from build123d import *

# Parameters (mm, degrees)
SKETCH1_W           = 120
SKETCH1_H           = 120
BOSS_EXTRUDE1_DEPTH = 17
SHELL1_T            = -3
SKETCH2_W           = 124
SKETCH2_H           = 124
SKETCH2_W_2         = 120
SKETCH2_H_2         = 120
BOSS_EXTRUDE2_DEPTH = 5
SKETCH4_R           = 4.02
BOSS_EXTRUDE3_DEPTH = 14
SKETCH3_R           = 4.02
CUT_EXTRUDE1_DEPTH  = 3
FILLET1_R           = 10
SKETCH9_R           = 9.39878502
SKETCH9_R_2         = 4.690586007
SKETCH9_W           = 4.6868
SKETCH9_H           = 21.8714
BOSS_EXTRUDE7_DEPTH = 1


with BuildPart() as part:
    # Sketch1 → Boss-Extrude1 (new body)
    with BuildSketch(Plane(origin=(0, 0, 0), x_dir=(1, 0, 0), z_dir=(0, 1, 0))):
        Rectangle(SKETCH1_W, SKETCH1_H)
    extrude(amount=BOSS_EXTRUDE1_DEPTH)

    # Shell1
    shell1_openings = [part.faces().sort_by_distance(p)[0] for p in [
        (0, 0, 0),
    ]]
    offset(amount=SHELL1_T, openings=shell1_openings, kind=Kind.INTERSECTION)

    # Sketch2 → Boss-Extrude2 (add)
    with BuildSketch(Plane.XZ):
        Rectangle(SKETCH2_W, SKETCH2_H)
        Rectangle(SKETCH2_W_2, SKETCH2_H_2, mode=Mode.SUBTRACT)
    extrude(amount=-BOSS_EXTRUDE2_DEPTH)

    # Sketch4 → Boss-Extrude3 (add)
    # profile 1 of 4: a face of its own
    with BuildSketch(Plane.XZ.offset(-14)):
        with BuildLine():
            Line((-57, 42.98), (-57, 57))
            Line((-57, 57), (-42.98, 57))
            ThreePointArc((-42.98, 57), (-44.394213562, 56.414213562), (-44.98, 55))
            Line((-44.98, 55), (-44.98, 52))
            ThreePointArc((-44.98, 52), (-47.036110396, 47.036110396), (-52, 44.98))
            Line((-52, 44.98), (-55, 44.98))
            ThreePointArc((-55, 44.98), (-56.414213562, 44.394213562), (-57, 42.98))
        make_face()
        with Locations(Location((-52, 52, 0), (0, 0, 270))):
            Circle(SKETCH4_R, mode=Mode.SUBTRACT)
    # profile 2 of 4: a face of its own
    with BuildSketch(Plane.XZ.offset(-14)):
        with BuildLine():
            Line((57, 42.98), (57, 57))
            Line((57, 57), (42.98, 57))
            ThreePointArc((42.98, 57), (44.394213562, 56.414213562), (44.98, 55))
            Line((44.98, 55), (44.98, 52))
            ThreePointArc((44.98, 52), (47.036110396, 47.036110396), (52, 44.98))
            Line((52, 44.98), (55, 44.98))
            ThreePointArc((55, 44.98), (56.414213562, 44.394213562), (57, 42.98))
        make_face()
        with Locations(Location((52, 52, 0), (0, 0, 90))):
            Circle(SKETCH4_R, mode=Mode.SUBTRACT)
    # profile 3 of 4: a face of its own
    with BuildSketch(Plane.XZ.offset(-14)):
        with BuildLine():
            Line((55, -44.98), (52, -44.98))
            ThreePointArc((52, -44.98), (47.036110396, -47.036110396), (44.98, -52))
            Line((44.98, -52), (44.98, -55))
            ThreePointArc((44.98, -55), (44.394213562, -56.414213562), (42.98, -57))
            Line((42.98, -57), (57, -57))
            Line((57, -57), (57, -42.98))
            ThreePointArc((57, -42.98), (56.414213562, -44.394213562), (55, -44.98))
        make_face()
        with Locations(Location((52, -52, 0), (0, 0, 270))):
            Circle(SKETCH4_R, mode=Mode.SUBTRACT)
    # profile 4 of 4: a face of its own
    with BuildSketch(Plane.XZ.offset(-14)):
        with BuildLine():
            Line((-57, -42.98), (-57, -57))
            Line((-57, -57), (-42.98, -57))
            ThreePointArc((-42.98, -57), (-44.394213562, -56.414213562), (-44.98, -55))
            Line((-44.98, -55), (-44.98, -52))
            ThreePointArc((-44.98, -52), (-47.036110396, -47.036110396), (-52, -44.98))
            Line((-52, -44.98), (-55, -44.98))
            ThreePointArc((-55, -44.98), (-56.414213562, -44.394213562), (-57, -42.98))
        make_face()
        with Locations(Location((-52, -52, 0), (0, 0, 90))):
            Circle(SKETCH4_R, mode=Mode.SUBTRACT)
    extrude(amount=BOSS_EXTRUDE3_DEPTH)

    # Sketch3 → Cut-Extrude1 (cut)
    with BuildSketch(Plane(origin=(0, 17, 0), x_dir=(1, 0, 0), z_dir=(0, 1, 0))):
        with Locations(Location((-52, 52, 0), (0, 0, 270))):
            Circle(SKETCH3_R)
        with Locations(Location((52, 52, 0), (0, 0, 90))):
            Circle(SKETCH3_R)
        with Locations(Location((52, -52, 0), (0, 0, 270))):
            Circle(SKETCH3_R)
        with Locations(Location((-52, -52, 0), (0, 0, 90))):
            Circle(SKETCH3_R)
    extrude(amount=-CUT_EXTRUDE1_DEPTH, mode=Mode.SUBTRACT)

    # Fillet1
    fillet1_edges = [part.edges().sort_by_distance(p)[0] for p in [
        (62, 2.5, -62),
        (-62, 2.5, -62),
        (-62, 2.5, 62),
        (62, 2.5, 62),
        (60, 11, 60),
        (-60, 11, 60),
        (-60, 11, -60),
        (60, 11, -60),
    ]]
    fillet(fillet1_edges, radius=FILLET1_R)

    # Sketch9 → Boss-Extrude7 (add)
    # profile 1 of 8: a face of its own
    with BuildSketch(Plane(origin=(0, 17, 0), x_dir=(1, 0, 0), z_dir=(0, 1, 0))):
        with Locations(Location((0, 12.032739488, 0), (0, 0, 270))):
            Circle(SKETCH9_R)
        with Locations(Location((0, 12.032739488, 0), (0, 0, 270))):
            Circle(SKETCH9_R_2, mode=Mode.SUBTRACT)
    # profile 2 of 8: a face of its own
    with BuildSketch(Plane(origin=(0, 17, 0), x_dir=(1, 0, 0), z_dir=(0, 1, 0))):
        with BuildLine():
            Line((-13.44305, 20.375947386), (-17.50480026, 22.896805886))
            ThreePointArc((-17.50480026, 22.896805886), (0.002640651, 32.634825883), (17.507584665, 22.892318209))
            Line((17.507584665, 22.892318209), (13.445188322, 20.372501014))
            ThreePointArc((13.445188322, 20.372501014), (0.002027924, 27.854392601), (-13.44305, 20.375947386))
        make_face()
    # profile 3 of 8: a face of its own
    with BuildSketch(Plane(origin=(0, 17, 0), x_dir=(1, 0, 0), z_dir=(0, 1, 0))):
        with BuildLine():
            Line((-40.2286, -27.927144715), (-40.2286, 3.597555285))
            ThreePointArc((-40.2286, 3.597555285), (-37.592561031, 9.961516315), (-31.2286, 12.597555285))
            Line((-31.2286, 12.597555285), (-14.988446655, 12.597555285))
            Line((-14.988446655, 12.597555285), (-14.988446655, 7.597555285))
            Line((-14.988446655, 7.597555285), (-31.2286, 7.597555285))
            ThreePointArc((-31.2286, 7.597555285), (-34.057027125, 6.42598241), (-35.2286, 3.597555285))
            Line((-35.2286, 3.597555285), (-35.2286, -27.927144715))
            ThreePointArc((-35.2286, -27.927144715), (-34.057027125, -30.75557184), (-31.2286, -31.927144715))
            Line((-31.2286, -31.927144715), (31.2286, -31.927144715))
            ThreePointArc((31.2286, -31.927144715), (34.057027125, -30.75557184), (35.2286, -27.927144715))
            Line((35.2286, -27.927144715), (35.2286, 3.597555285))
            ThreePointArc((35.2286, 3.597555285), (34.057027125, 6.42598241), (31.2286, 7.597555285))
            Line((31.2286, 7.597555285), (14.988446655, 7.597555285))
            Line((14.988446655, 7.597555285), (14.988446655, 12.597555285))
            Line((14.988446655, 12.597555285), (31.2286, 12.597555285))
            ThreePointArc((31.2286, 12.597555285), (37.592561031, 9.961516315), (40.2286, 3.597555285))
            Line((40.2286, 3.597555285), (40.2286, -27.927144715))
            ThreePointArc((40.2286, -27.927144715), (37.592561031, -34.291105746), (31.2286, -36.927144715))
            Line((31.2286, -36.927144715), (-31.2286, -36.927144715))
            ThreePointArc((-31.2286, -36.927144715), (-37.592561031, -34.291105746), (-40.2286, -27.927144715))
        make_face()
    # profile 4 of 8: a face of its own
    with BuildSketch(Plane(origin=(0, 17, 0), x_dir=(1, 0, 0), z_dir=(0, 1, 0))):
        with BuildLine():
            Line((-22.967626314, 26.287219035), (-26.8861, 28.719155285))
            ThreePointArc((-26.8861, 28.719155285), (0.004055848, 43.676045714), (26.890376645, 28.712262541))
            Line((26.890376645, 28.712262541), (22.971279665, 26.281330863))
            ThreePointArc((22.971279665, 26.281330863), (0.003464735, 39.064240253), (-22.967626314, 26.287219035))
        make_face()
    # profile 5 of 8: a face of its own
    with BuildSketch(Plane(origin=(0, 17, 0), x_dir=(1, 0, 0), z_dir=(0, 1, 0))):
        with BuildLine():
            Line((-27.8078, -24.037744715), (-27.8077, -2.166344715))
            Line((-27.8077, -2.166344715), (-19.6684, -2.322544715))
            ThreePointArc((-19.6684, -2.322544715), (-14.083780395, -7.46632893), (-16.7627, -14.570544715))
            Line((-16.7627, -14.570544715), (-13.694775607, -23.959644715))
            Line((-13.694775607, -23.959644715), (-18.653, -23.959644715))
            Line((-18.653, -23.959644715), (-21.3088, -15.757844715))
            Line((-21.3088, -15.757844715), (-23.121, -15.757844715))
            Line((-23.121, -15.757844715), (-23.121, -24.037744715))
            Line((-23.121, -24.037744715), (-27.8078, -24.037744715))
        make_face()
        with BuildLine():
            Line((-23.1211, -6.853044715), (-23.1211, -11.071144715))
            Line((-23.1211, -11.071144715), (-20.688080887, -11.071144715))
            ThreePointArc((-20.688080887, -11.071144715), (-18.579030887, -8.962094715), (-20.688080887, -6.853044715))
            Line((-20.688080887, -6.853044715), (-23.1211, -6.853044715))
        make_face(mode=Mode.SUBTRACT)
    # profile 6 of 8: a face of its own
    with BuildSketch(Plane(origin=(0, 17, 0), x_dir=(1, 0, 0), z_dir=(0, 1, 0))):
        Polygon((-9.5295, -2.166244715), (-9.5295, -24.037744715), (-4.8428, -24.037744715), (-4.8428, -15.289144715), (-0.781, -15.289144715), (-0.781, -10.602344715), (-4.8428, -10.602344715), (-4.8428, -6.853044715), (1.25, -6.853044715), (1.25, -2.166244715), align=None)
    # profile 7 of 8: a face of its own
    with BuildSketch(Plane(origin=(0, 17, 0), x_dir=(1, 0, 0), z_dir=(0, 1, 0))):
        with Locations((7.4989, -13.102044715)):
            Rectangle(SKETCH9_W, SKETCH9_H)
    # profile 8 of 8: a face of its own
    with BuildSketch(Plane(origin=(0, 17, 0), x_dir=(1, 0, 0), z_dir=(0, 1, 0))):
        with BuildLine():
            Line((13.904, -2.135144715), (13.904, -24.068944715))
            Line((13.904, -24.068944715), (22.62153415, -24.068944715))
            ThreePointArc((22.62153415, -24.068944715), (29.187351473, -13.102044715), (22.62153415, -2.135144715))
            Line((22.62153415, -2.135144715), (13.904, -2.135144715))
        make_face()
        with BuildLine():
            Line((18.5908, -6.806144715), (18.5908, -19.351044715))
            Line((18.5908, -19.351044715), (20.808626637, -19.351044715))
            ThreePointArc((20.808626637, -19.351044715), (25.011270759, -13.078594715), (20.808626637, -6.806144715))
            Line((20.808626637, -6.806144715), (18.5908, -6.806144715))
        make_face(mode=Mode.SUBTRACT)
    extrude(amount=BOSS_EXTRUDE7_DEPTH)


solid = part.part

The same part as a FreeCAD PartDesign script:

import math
import FreeCAD as App
import Part
import Sketcher
from FreeCAD import Vector
Q = App.Units.Quantity


def edges_at(feature, points):
    """Names of the edges that pass closest to the given points."""
    edges = feature.Shape.Edges
    near = lambda p: min(range(len(edges)), key=lambda i: edges[i].distToShape(Part.Vertex(*p))[0])
    return sorted({f"Edge{near(p) + 1}" for p in points})


def faces_at(feature, points):
    """Names of the faces that lie closest to the given points."""
    faces = feature.Shape.Faces
    near = lambda p: min(range(len(faces)), key=lambda i: faces[i].distToShape(Part.Vertex(*p))[0])
    return sorted({f"Face{near(p) + 1}" for p in points})


def add_polygon(sketch, points):
    """Adds a closed chain of lines whose ends are joined by coincident constraints."""
    first, n = sketch.GeometryCount, len(points)
    for a, b in zip(points, points[1:] + points[:1]):
        sketch.addGeometry(Part.LineSegment(App.Vector(*a, 0), App.Vector(*b, 0)), False)
    for i in range(n):
        sketch.addConstraint(Sketcher.Constraint("Coincident", first + i, 2, first + (i + 1) % n, 1))

doc = App.newDocument("Part")
body = doc.addObject("PartDesign::Body", "Body")

sketch1 = body.newObject("Sketcher::SketchObject", "Sketch")
sketch1.AttachmentSupport = (doc.getObject("XZ_Plane"), [""])
sketch1.MapMode = "FlatFace"
add_polygon(sketch1, [(-60, -60), (-60, 60), (60, 60), (60, -60)])
sketch1.addConstraint(Sketcher.Constraint("Vertical", 0))
sketch1.addConstraint(Sketcher.Constraint("Horizontal", 1))
sketch1.addConstraint(Sketcher.Constraint("Vertical", 2))
sketch1.addConstraint(Sketcher.Constraint("Horizontal", 3))
sketch1.addConstraint(Sketcher.Constraint("Symmetric", 0, 2, 2, 2, -1, 1))
sketch1.addConstraint(Sketcher.Constraint("Equal", 3, 0))
sketch1.addConstraint(Sketcher.Constraint("DistanceX", 1, 1, 1, 2, Q("120 mm")))
pad1 = body.newObject("PartDesign::Pad", "Pad")
pad1.Profile = sketch1
pad1.Length = 17
pad1.Reversed = True
doc.recompute()

thickness = body.newObject("PartDesign::Thickness", "Thickness")
thickness.Base = (pad1, faces_at(pad1, [(0, 0, 0)]))
thickness.Value = 3
thickness.Reversed = True
thickness.Join = "Intersection"

sketch2 = body.newObject("Sketcher::SketchObject", "Sketch001")
sketch2.AttachmentSupport = (doc.getObject("XZ_Plane"), [""])
sketch2.MapMode = "FlatFace"
add_polygon(sketch2, [(-62, 62), (-62, -62), (62, -62), (62, 62)])
add_polygon(sketch2, [(60, -60), (-60, -60), (-60, 60), (60, 60)])
sketch2.addConstraint(Sketcher.Constraint("Vertical", 0))
sketch2.addConstraint(Sketcher.Constraint("Horizontal", 1))
sketch2.addConstraint(Sketcher.Constraint("Vertical", 2))
sketch2.addConstraint(Sketcher.Constraint("Horizontal", 3))
sketch2.addConstraint(Sketcher.Constraint("Horizontal", 4))
sketch2.addConstraint(Sketcher.Constraint("Vertical", 5))
sketch2.addConstraint(Sketcher.Constraint("Horizontal", 6))
sketch2.addConstraint(Sketcher.Constraint("Vertical", 7))
sketch2.addConstraint(Sketcher.Constraint("Symmetric", 0, 2, 2, 2, -1, 1))
sketch2.addConstraint(Sketcher.Constraint("Symmetric", 4, 2, 6, 2, -1, 1))
sketch2.addConstraint(Sketcher.Constraint("Equal", 3, 0))
sketch2.addConstraint(Sketcher.Constraint("Equal", 6, 5))
sketch2.addConstraint(Sketcher.Constraint("DistanceX", 1, 1, 1, 2, Q("124 mm")))
sketch2.addConstraint(Sketcher.Constraint("DistanceX", 4, 2, 4, 1, Q("120 mm")))
pad2 = body.newObject("PartDesign::Pad", "Pad001")
pad2.Profile = sketch2
pad2.Length = 5
pad2.Reversed = True

sketch3 = body.newObject("Sketcher::SketchObject", "Sketch002")
sketch3.AttachmentSupport = (doc.getObject("XZ_Plane"), [""])
sketch3.MapMode = "FlatFace"
sketch3.AttachmentOffset = App.Placement(Vector(0, 0, -14), App.Rotation())
sketch3.addGeometry(Part.LineSegment(Vector(-57, 57, 0), Vector(-57, 43, 0)), False)
sketch3.addGeometry(Part.ArcOfCircle(Part.Circle(Vector(-55, 43, 0), Vector(0, 0, 1), 2), math.radians(90), math.radians(180)), False)
sketch3.addGeometry(Part.LineSegment(Vector(-55, 45, 0), Vector(-52, 45, 0)), False)
sketch3.addGeometry(Part.ArcOfCircle(Part.Circle(Vector(-52, 52, 0), Vector(0, 0, 1), 7), math.radians(-90), math.radians(0)), False)
sketch3.addGeometry(Part.LineSegment(Vector(-45, 52, 0), Vector(-45, 55, 0)), False)
sketch3.addGeometry(Part.ArcOfCircle(Part.Circle(Vector(-43, 55, 0), Vector(0, 0, 1), 2), math.radians(90), math.radians(180)), False)
sketch3.addGeometry(Part.LineSegment(Vector(-43, 57, 0), Vector(-57, 57, 0)), False)
sketch3.addGeometry(Part.Circle(Vector(-52, 52, 0), Vector(0, 0, 1), 4), False)
sketch3.addGeometry(Part.LineSegment(Vector(57, 43, 0), Vector(57, 57, 0)), False)
sketch3.addGeometry(Part.LineSegment(Vector(57, 57, 0), Vector(43, 57, 0)), False)
sketch3.addGeometry(Part.ArcOfCircle(Part.Circle(Vector(43, 55, 0), Vector(0, 0, 1), 2), math.radians(0), math.radians(90)), False)
sketch3.addGeometry(Part.LineSegment(Vector(45, 55, 0), Vector(45, 52, 0)), False)
sketch3.addGeometry(Part.ArcOfCircle(Part.Circle(Vector(52, 52, 0), Vector(0, 0, 1), 7), math.radians(180), math.radians(270)), False)
sketch3.addGeometry(Part.LineSegment(Vector(52, 45, 0), Vector(55, 45, 0)), False)
sketch3.addGeometry(Part.ArcOfCircle(Part.Circle(Vector(55, 43, 0), Vector(0, 0, 1), 2), math.radians(0), math.radians(90)), False)
sketch3.addGeometry(Part.Circle(Vector(52, 52, 0), Vector(0, 0, 1), 4), False)
sketch3.addGeometry(Part.LineSegment(Vector(55, -45, 0), Vector(52, -45, 0)), False)
sketch3.addGeometry(Part.ArcOfCircle(Part.Circle(Vector(52, -52, 0), Vector(0, 0, 1), 7), math.radians(90), math.radians(180)), False)
sketch3.addGeometry(Part.LineSegment(Vector(45, -52, 0), Vector(45, -55, 0)), False)
sketch3.addGeometry(Part.ArcOfCircle(Part.Circle(Vector(43, -55, 0), Vector(0, 0, 1), 2), math.radians(-90), math.radians(0)), False)
sketch3.addGeometry(Part.LineSegment(Vector(43, -57, 0), Vector(57, -57, 0)), False)
sketch3.addGeometry(Part.LineSegment(Vector(57, -57, 0), Vector(57, -43, 0)), False)
sketch3.addGeometry(Part.ArcOfCircle(Part.Circle(Vector(55, -43, 0), Vector(0, 0, 1), 2), math.radians(-90), math.radians(0)), False)
sketch3.addGeometry(Part.Circle(Vector(52, -52, 0), Vector(0, 0, 1), 4), False)
sketch3.addGeometry(Part.LineSegment(Vector(-57, -43, 0), Vector(-57, -57, 0)), False)
sketch3.addGeometry(Part.LineSegment(Vector(-57, -57, 0), Vector(-43, -57, 0)), False)
sketch3.addGeometry(Part.ArcOfCircle(Part.Circle(Vector(-43, -55, 0), Vector(0, 0, 1), 2), math.radians(-180), math.radians(-90)), False)
sketch3.addGeometry(Part.LineSegment(Vector(-45, -55, 0), Vector(-45, -52, 0)), False)
sketch3.addGeometry(Part.ArcOfCircle(Part.Circle(Vector(-52, -52, 0), Vector(0, 0, 1), 7), math.radians(0), math.radians(90)), False)
sketch3.addGeometry(Part.LineSegment(Vector(-52, -45, 0), Vector(-55, -45, 0)), False)
sketch3.addGeometry(Part.ArcOfCircle(Part.Circle(Vector(-55, -43, 0), Vector(0, 0, 1), 2), math.radians(-180), math.radians(-90)), False)
sketch3.addGeometry(Part.Circle(Vector(-52, -52, 0), Vector(0, 0, 1), 4), False)
sketch3.addConstraint(Sketcher.Constraint("Tangent", 0, 2, 1, 2))
sketch3.addConstraint(Sketcher.Constraint("Tangent", 1, 1, 2, 1))
sketch3.addConstraint(Sketcher.Constraint("Tangent", 2, 2, 3, 1))
sketch3.addConstraint(Sketcher.Constraint("Tangent", 3, 2, 4, 1))
sketch3.addConstraint(Sketcher.Constraint("Tangent", 4, 2, 5, 2))
sketch3.addConstraint(Sketcher.Constraint("Tangent", 5, 1, 6, 1))
sketch3.addConstraint(Sketcher.Constraint("Coincident", 6, 2, 0, 1))
sketch3.addConstraint(Sketcher.Constraint("Coincident", 8, 2, 9, 1))
sketch3.addConstraint(Sketcher.Constraint("Tangent", 9, 2, 10, 2))
sketch3.addConstraint(Sketcher.Constraint("Tangent", 10, 1, 11, 1))
sketch3.addConstraint(Sketcher.Constraint("Tangent", 11, 2, 12, 1))
sketch3.addConstraint(Sketcher.Constraint("Tangent", 12, 2, 13, 1))
sketch3.addConstraint(Sketcher.Constraint("Tangent", 13, 2, 14, 2))
sketch3.addConstraint(Sketcher.Constraint("Tangent", 14, 1, 8, 1))
sketch3.addConstraint(Sketcher.Constraint("Tangent", 16, 2, 17, 1))
sketch3.addConstraint(Sketcher.Constraint("Tangent", 17, 2, 18, 1))
sketch3.addConstraint(Sketcher.Constraint("Tangent", 18, 2, 19, 2))
sketch3.addConstraint(Sketcher.Constraint("Tangent", 19, 1, 20, 1))
sketch3.addConstraint(Sketcher.Constraint("Coincident", 20, 2, 21, 1))
sketch3.addConstraint(Sketcher.Constraint("Tangent", 21, 2, 22, 2))
sketch3.addConstraint(Sketcher.Constraint("Tangent", 22, 1, 16, 1))
sketch3.addConstraint(Sketcher.Constraint("Coincident", 24, 2, 25, 1))
sketch3.addConstraint(Sketcher.Constraint("Tangent", 25, 2, 26, 2))
sketch3.addConstraint(Sketcher.Constraint("Tangent", 26, 1, 27, 1))
sketch3.addConstraint(Sketcher.Constraint("Tangent", 27, 2, 28, 1))
sketch3.addConstraint(Sketcher.Constraint("Tangent", 28, 2, 29, 1))
sketch3.addConstraint(Sketcher.Constraint("Tangent", 29, 2, 30, 2))
sketch3.addConstraint(Sketcher.Constraint("Tangent", 30, 1, 24, 1))
sketch3.addConstraint(Sketcher.Constraint("Vertical", 0))
sketch3.addConstraint(Sketcher.Constraint("Horizontal", 2))
sketch3.addConstraint(Sketcher.Constraint("Vertical", 4))
sketch3.addConstraint(Sketcher.Constraint("Horizontal", 6))
sketch3.addConstraint(Sketcher.Constraint("Vertical", 8))
sketch3.addConstraint(Sketcher.Constraint("Horizontal", 9))
sketch3.addConstraint(Sketcher.Constraint("Vertical", 11))
sketch3.addConstraint(Sketcher.Constraint("Horizontal", 13))
sketch3.addConstraint(Sketcher.Constraint("Horizontal", 16))
sketch3.addConstraint(Sketcher.Constraint("Vertical", 18))
sketch3.addConstraint(Sketcher.Constraint("Horizontal", 20))
sketch3.addConstraint(Sketcher.Constraint("Vertical", 21))
sketch3.addConstraint(Sketcher.Constraint("Vertical", 24))
sketch3.addConstraint(Sketcher.Constraint("Horizontal", 25))
sketch3.addConstraint(Sketcher.Constraint("Vertical", 27))
sketch3.addConstraint(Sketcher.Constraint("Horizontal", 29))
sketch3.addConstraint(Sketcher.Constraint("Coincident", 7, 3, 3, 3))
sketch3.addConstraint(Sketcher.Constraint("Coincident", 15, 3, 12, 3))
sketch3.addConstraint(Sketcher.Constraint("Coincident", 23, 3, 17, 3))
sketch3.addConstraint(Sketcher.Constraint("Coincident", 31, 3, 28, 3))
sketch3.addConstraint(Sketcher.Constraint("Equal", 1, 5))
sketch3.addConstraint(Sketcher.Constraint("Equal", 5, 10))
sketch3.addConstraint(Sketcher.Constraint("Equal", 3, 12))
sketch3.addConstraint(Sketcher.Constraint("Equal", 10, 14))
sketch3.addConstraint(Sketcher.Constraint("Equal", 7, 15))
sketch3.addConstraint(Sketcher.Constraint("Equal", 12, 17))
sketch3.addConstraint(Sketcher.Constraint("Equal", 14, 19))
sketch3.addConstraint(Sketcher.Constraint("Equal", 19, 22))
sketch3.addConstraint(Sketcher.Constraint("Equal", 15, 23))
sketch3.addConstraint(Sketcher.Constraint("Equal", 22, 26))
sketch3.addConstraint(Sketcher.Constraint("Equal", 17, 28))
sketch3.addConstraint(Sketcher.Constraint("Equal", 26, 30))
sketch3.addConstraint(Sketcher.Constraint("Equal", 23, 31))
sketch3.addConstraint(Sketcher.Constraint("Symmetric", 3, 3, 17, 3, -1, 1))
sketch3.addConstraint(Sketcher.Constraint("Symmetric", 10, 3, 26, 3, -1, 1))
sketch3.addConstraint(Sketcher.Constraint("Symmetric", 14, 3, 30, 3, -1, 1))
sketch3.addConstraint(Sketcher.Constraint("Symmetric", 6, 2, 20, 2, -1, 1))
sketch3.addConstraint(Sketcher.Constraint("Symmetric", 5, 3, 10, 3, -2))
sketch3.addConstraint(Sketcher.Constraint("Symmetric", 1, 3, 14, 3, -2))
sketch3.addConstraint(Sketcher.Constraint("Equal", 25, 0))
sketch3.addConstraint(Sketcher.Constraint("Radius", 1, Q("2 mm")))
sketch3.addConstraint(Sketcher.Constraint("Diameter", 7, Q("8.04 mm")))
sketch3.addConstraint(Sketcher.Constraint("DistanceX", 2, 1, 2, 2, Q("3 mm")))
sketch3.addConstraint(Sketcher.Constraint("Radius", 3, Q("7.02 mm")))
sketch3.addConstraint(Sketcher.Constraint("DistanceX", 1, 3, -1, 1, Q("55 mm")))
sketch3.addConstraint(Sketcher.Constraint("DistanceY", -1, 1, 3, 3, Q("52 mm")))
pad3 = body.newObject("PartDesign::Pad", "Pad002")
pad3.Profile = sketch3
pad3.Length = 14

sketch4 = body.newObject("Sketcher::SketchObject", "Sketch003")
sketch4.AttachmentSupport = (doc.getObject("XZ_Plane"), [""])
sketch4.MapMode = "FlatFace"
sketch4.AttachmentOffset = App.Placement(Vector(0, 0, -17), App.Rotation())
sketch4.addGeometry(Part.Circle(Vector(-52, -52, 0), Vector(0, 0, 1), 4), False)
sketch4.addGeometry(Part.Circle(Vector(52, -52, 0), Vector(0, 0, 1), 4), False)
sketch4.addGeometry(Part.Circle(Vector(52, 52, 0), Vector(0, 0, 1), 4), False)
sketch4.addGeometry(Part.Circle(Vector(-52, 52, 0), Vector(0, 0, 1), 4), False)
sketch4.addConstraint(Sketcher.Constraint("Equal", 0, 1))
sketch4.addConstraint(Sketcher.Constraint("Equal", 1, 2))
sketch4.addConstraint(Sketcher.Constraint("Equal", 2, 3))
sketch4.addConstraint(Sketcher.Constraint("Symmetric", 0, 3, 2, 3, -1, 1))
sketch4.addConstraint(Sketcher.Constraint("Symmetric", 1, 3, 3, 3, -1, 1))
sketch4.addConstraint(Sketcher.Constraint("Symmetric", 0, 3, 1, 3, -2))
sketch4.addConstraint(Sketcher.Constraint("Diameter", 0, Q("8.04 mm")))
sketch4.addConstraint(Sketcher.Constraint("DistanceX", 0, 3, -1, 1, Q("52 mm")))
sketch4.addConstraint(Sketcher.Constraint("DistanceY", 0, 3, -1, 1, Q("52 mm")))
pocket1 = body.newObject("PartDesign::Pocket", "Pocket")
pocket1.Profile = sketch4
pocket1.Length = 3
pocket1.Reversed = True
doc.recompute()

fillet = body.newObject("PartDesign::Fillet", "Fillet")
fillet.Base = (pocket1, edges_at(pocket1, [
    (62, 2.5, -62),
    (-62, 2.5, -62),
    (-62, 2.5, 62),
    (62, 2.5, 62),
    (60, 11, 60),
    (-60, 11, 60),
    (-60, 11, -60),
    (60, 11, -60),
]))
fillet.Radius = 10

sketch5 = body.newObject("Sketcher::SketchObject", "Sketch004")
sketch5.AttachmentSupport = (doc.getObject("XZ_Plane"), [""])
sketch5.MapMode = "FlatFace"
sketch5.AttachmentOffset = App.Placement(Vector(0, 0, -17), App.Rotation())
sketch5.addGeometry(Part.Circle(Vector(0, -12, 0), Vector(0, 0, 1), 9.4), False)
sketch5.addGeometry(Part.Circle(Vector(0, -12, 0), Vector(0, 0, 1), 4.7), False)
sketch5.addGeometry(Part.LineSegment(Vector(-17.5, -22.9, 0), Vector(-13.4, -20.4, 0)), False)
sketch5.addGeometry(Part.ArcOfCircle(Part.Circle(Vector(0, -12, 0), Vector(0, 0, 1), 15.8), math.radians(-148), math.radians(-32)), False)
sketch5.addGeometry(Part.LineSegment(Vector(13.4, -20.4, 0), Vector(17.5, -22.9, 0)), False)
sketch5.addGeometry(Part.ArcOfCircle(Part.Circle(Vector(0, -12, 0), Vector(0, 0, 1), 20.6), math.radians(-148), math.radians(-32)), False)
sketch5.addGeometry(Part.LineSegment(Vector(-40.2, -3.6, 0), Vector(-40.2, 27.9, 0)), False)
sketch5.addGeometry(Part.ArcOfCircle(Part.Circle(Vector(-31.2, 27.9, 0), Vector(0, 0, 1), 9), math.radians(90), math.radians(180)), False)
sketch5.addGeometry(Part.LineSegment(Vector(-31.2, 36.9, 0), Vector(31.2, 36.9, 0)), False)
sketch5.addGeometry(Part.ArcOfCircle(Part.Circle(Vector(31.2, 27.9, 0), Vector(0, 0, 1), 9), math.radians(0), math.radians(90)), False)
sketch5.addGeometry(Part.LineSegment(Vector(40.2, 27.9, 0), Vector(40.2, -3.6, 0)), False)
sketch5.addGeometry(Part.ArcOfCircle(Part.Circle(Vector(31.2, -3.6, 0), Vector(0, 0, 1), 9), math.radians(-90), math.radians(0)), False)
sketch5.addGeometry(Part.LineSegment(Vector(31.2, -12.6, 0), Vector(15, -12.6, 0)), False)
sketch5.addGeometry(Part.LineSegment(Vector(15, -12.6, 0), Vector(15, -7.6, 0)), False)
sketch5.addGeometry(Part.LineSegment(Vector(15, -7.6, 0), Vector(31.2, -7.6, 0)), False)
sketch5.addGeometry(Part.ArcOfCircle(Part.Circle(Vector(31.2, -3.6, 0), Vector(0, 0, 1), 4), math.radians(-90), math.radians(0)), False)
sketch5.addGeometry(Part.LineSegment(Vector(35.2, -3.6, 0), Vector(35.2, 27.9, 0)), False)
sketch5.addGeometry(Part.ArcOfCircle(Part.Circle(Vector(31.2, 27.9, 0), Vector(0, 0, 1), 4), math.radians(0), math.radians(90)), False)
sketch5.addGeometry(Part.LineSegment(Vector(31.2, 31.9, 0), Vector(-31.2, 31.9, 0)), False)
sketch5.addGeometry(Part.ArcOfCircle(Part.Circle(Vector(-31.2, 27.9, 0), Vector(0, 0, 1), 4), math.radians(90), math.radians(180)), False)
sketch5.addGeometry(Part.LineSegment(Vector(-35.2, 27.9, 0), Vector(-35.2, -3.6, 0)), False)
sketch5.addGeometry(Part.ArcOfCircle(Part.Circle(Vector(-31.2, -3.6, 0), Vector(0, 0, 1), 4), math.radians(180), math.radians(270)), False)
sketch5.addGeometry(Part.LineSegment(Vector(-31.2, -7.6, 0), Vector(-15, -7.6, 0)), False)
sketch5.addGeometry(Part.LineSegment(Vector(-15, -7.6, 0), Vector(-15, -12.6, 0)), False)
sketch5.addGeometry(Part.LineSegment(Vector(-15, -12.6, 0), Vector(-31.2, -12.6, 0)), False)
sketch5.addGeometry(Part.ArcOfCircle(Part.Circle(Vector(-31.2, -3.6, 0), Vector(0, 0, 1), 9), math.radians(-180), math.radians(-90)), False)
sketch5.addGeometry(Part.LineSegment(Vector(-26.9, -28.7, 0), Vector(-23, -26.3, 0)), False)
sketch5.addGeometry(Part.ArcOfCircle(Part.Circle(Vector(0, -12, 0), Vector(0, 0, 1), 27), math.radians(-148), math.radians(-32)), False)
sketch5.addGeometry(Part.LineSegment(Vector(23, -26.3, 0), Vector(26.9, -28.7, 0)), False)
sketch5.addGeometry(Part.ArcOfCircle(Part.Circle(Vector(0, -12, 0), Vector(0, 0, 1), 31.6), math.radians(-148), math.radians(-32)), False)
sketch5.addGeometry(Part.LineSegment(Vector(-27.8, 2.2, 0), Vector(-27.8, 24, 0)), False)
sketch5.addGeometry(Part.LineSegment(Vector(-27.8, 24, 0), Vector(-23.1, 24, 0)), False)
sketch5.addGeometry(Part.LineSegment(Vector(-23.1, 24, 0), Vector(-23.1, 15.8, 0)), False)
sketch5.addGeometry(Part.LineSegment(Vector(-23.1, 15.8, 0), Vector(-21.3, 15.8, 0)), False)
sketch5.addGeometry(Part.LineSegment(Vector(-21.3, 15.8, 0), Vector(-18.7, 24, 0)), False)
sketch5.addGeometry(Part.LineSegment(Vector(-18.7, 24, 0), Vector(-13.7, 24, 0)), False)
sketch5.addGeometry(Part.LineSegment(Vector(-13.7, 24, 0), Vector(-16.8, 14.6, 0)), False)
sketch5.addGeometry(Part.ArcOfCircle(Part.Circle(Vector(-20.7, 9, 0), Vector(0, 0, 1), 6.8), math.radians(-81), math.radians(55)), False)
sketch5.addGeometry(Part.LineSegment(Vector(-19.7, 2.3, 0), Vector(-27.8, 2.2, 0)), False)
sketch5.addGeometry(Part.LineSegment(Vector(-23.1, 6.9, 0), Vector(-20.7, 6.9, 0)), False)
sketch5.addGeometry(Part.ArcOfCircle(Part.Circle(Vector(-20.7, 9, 0), Vector(0, 0, 1), 2.1), math.radians(-90), math.radians(90)), False)
sketch5.addGeometry(Part.LineSegment(Vector(-20.7, 11.1, 0), Vector(-23.1, 11.1, 0)), False)
sketch5.addGeometry(Part.LineSegment(Vector(-23.1, 11.1, 0), Vector(-23.1, 6.9, 0)), False)
add_polygon(sketch5, [(-9.5, 2.2), (-9.5, 24), (-4.8, 24), (-4.8, 15.3), (-0.8, 15.3), (-0.8, 10.6), (-4.8, 10.6), (-4.8, 6.9), (1.2, 6.9), (1.2, 2.2)])
add_polygon(sketch5, [(5.2, 2.2), (5.2, 24), (9.8, 24), (9.8, 2.2)])
sketch5.addGeometry(Part.LineSegment(Vector(13.9, 2.1, 0), Vector(13.9, 24.1, 0)), False)
sketch5.addGeometry(Part.LineSegment(Vector(13.9, 24.1, 0), Vector(22.6, 24.1, 0)), False)
sketch5.addGeometry(Part.ArcOfCircle(Part.Circle(Vector(16.7, 13.1, 0), Vector(0, 0, 1), 12.4), math.radians(-62), math.radians(62)), False)
sketch5.addGeometry(Part.LineSegment(Vector(22.6, 2.1, 0), Vector(13.9, 2.1, 0)), False)
sketch5.addGeometry(Part.LineSegment(Vector(18.6, 19.4, 0), Vector(18.6, 6.8, 0)), False)
sketch5.addGeometry(Part.LineSegment(Vector(18.6, 6.8, 0), Vector(20.8, 6.8, 0)), False)
sketch5.addGeometry(Part.ArcOfCircle(Part.Circle(Vector(18.2, 13.1, 0), Vector(0, 0, 1), 6.8), math.radians(-68), math.radians(68)), False)
sketch5.addGeometry(Part.LineSegment(Vector(20.8, 19.4, 0), Vector(18.6, 19.4, 0)), False)
sketch5.addConstraint(Sketcher.Constraint("Coincident", 2, 2, 3, 1))
sketch5.addConstraint(Sketcher.Constraint("Coincident", 3, 2, 4, 1))
sketch5.addConstraint(Sketcher.Constraint("Coincident", 4, 2, 5, 2))
sketch5.addConstraint(Sketcher.Constraint("Coincident", 5, 1, 2, 1))
sketch5.addConstraint(Sketcher.Constraint("Tangent", 6, 2, 7, 2))
sketch5.addConstraint(Sketcher.Constraint("Tangent", 7, 1, 8, 1))
sketch5.addConstraint(Sketcher.Constraint("Tangent", 8, 2, 9, 2))
sketch5.addConstraint(Sketcher.Constraint("Tangent", 9, 1, 10, 1))
sketch5.addConstraint(Sketcher.Constraint("Tangent", 10, 2, 11, 2))
sketch5.addConstraint(Sketcher.Constraint("Tangent", 11, 1, 12, 1))
sketch5.addConstraint(Sketcher.Constraint("Coincident", 12, 2, 13, 1))
sketch5.addConstraint(Sketcher.Constraint("Coincident", 13, 2, 14, 1))
sketch5.addConstraint(Sketcher.Constraint("Tangent", 14, 2, 15, 1))
sketch5.addConstraint(Sketcher.Constraint("Tangent", 15, 2, 16, 1))
sketch5.addConstraint(Sketcher.Constraint("Tangent", 16, 2, 17, 1))
sketch5.addConstraint(Sketcher.Constraint("Tangent", 17, 2, 18, 1))
sketch5.addConstraint(Sketcher.Constraint("Tangent", 18, 2, 19, 1))
sketch5.addConstraint(Sketcher.Constraint("Tangent", 19, 2, 20, 1))
sketch5.addConstraint(Sketcher.Constraint("Tangent", 20, 2, 21, 1))
sketch5.addConstraint(Sketcher.Constraint("Tangent", 21, 2, 22, 1))
sketch5.addConstraint(Sketcher.Constraint("Coincident", 22, 2, 23, 1))
sketch5.addConstraint(Sketcher.Constraint("Coincident", 23, 2, 24, 1))
sketch5.addConstraint(Sketcher.Constraint("Tangent", 24, 2, 25, 2))
sketch5.addConstraint(Sketcher.Constraint("Tangent", 25, 1, 6, 1))
sketch5.addConstraint(Sketcher.Constraint("Coincident", 26, 2, 27, 1))
sketch5.addConstraint(Sketcher.Constraint("Coincident", 27, 2, 28, 1))
sketch5.addConstraint(Sketcher.Constraint("Coincident", 28, 2, 29, 2))
sketch5.addConstraint(Sketcher.Constraint("Coincident", 29, 1, 26, 1))
sketch5.addConstraint(Sketcher.Constraint("Coincident", 30, 2, 31, 1))
sketch5.addConstraint(Sketcher.Constraint("Coincident", 31, 2, 32, 1))
sketch5.addConstraint(Sketcher.Constraint("Coincident", 32, 2, 33, 1))
sketch5.addConstraint(Sketcher.Constraint("Coincident", 33, 2, 34, 1))
sketch5.addConstraint(Sketcher.Constraint("Coincident", 34, 2, 35, 1))
sketch5.addConstraint(Sketcher.Constraint("Coincident", 35, 2, 36, 1))
sketch5.addConstraint(Sketcher.Constraint("Coincident", 36, 2, 37, 2))
sketch5.addConstraint(Sketcher.Constraint("Coincident", 37, 1, 38, 1))
sketch5.addConstraint(Sketcher.Constraint("Coincident", 38, 2, 30, 1))
sketch5.addConstraint(Sketcher.Constraint("Tangent", 39, 2, 40, 1))
sketch5.addConstraint(Sketcher.Constraint("Tangent", 40, 2, 41, 1))
sketch5.addConstraint(Sketcher.Constraint("Coincident", 41, 2, 42, 1))
sketch5.addConstraint(Sketcher.Constraint("Coincident", 42, 2, 39, 1))
sketch5.addConstraint(Sketcher.Constraint("Coincident", 57, 2, 58, 1))
sketch5.addConstraint(Sketcher.Constraint("Coincident", 58, 2, 59, 2))
sketch5.addConstraint(Sketcher.Constraint("Coincident", 59, 1, 60, 1))
sketch5.addConstraint(Sketcher.Constraint("Coincident", 60, 2, 57, 1))
sketch5.addConstraint(Sketcher.Constraint("Coincident", 61, 2, 62, 1))
sketch5.addConstraint(Sketcher.Constraint("Coincident", 62, 2, 63, 1))
sketch5.addConstraint(Sketcher.Constraint("Coincident", 63, 2, 64, 1))
sketch5.addConstraint(Sketcher.Constraint("Coincident", 64, 2, 61, 1))
sketch5.addConstraint(Sketcher.Constraint("Vertical", 6))
sketch5.addConstraint(Sketcher.Constraint("Horizontal", 8))
sketch5.addConstraint(Sketcher.Constraint("Vertical", 10))
sketch5.addConstraint(Sketcher.Constraint("Horizontal", 12))
sketch5.addConstraint(Sketcher.Constraint("Vertical", 13))
sketch5.addConstraint(Sketcher.Constraint("Horizontal", 14))
sketch5.addConstraint(Sketcher.Constraint("Vertical", 16))
sketch5.addConstraint(Sketcher.Constraint("Horizontal", 18))
sketch5.addConstraint(Sketcher.Constraint("Vertical", 20))
sketch5.addConstraint(Sketcher.Constraint("Horizontal", 22))
sketch5.addConstraint(Sketcher.Constraint("Vertical", 23))
sketch5.addConstraint(Sketcher.Constraint("Horizontal", 24))
sketch5.addConstraint(Sketcher.Constraint("Horizontal", 31))
sketch5.addConstraint(Sketcher.Constraint("Vertical", 32))
sketch5.addConstraint(Sketcher.Constraint("Horizontal", 33))
sketch5.addConstraint(Sketcher.Constraint("Horizontal", 35))
sketch5.addConstraint(Sketcher.Constraint("Horizontal", 39))
sketch5.addConstraint(Sketcher.Constraint("Horizontal", 41))
sketch5.addConstraint(Sketcher.Constraint("Vertical", 42))
sketch5.addConstraint(Sketcher.Constraint("Vertical", 43))
sketch5.addConstraint(Sketcher.Constraint("Horizontal", 44))
sketch5.addConstraint(Sketcher.Constraint("Vertical", 45))
sketch5.addConstraint(Sketcher.Constraint("Horizontal", 46))
sketch5.addConstraint(Sketcher.Constraint("Vertical", 47))
sketch5.addConstraint(Sketcher.Constraint("Horizontal", 48))
sketch5.addConstraint(Sketcher.Constraint("Vertical", 49))
sketch5.addConstraint(Sketcher.Constraint("Horizontal", 50))
sketch5.addConstraint(Sketcher.Constraint("Vertical", 51))
sketch5.addConstraint(Sketcher.Constraint("Horizontal", 52))
sketch5.addConstraint(Sketcher.Constraint("Vertical", 53))
sketch5.addConstraint(Sketcher.Constraint("Horizontal", 54))
sketch5.addConstraint(Sketcher.Constraint("Vertical", 55))
sketch5.addConstraint(Sketcher.Constraint("Horizontal", 56))
sketch5.addConstraint(Sketcher.Constraint("Vertical", 57))
sketch5.addConstraint(Sketcher.Constraint("Horizontal", 58))
sketch5.addConstraint(Sketcher.Constraint("Horizontal", 60))
sketch5.addConstraint(Sketcher.Constraint("Vertical", 61))
sketch5.addConstraint(Sketcher.Constraint("Horizontal", 62))
sketch5.addConstraint(Sketcher.Constraint("Horizontal", 64))
sketch5.addConstraint(Sketcher.Constraint("Coincident", 1, 3, 0, 3))
sketch5.addConstraint(Sketcher.Constraint("Coincident", 3, 3, 0, 3))
sketch5.addConstraint(Sketcher.Constraint("Coincident", 5, 3, 0, 3))
sketch5.addConstraint(Sketcher.Constraint("Coincident", 15, 3, 11, 3))
sketch5.addConstraint(Sketcher.Constraint("Coincident", 17, 3, 9, 3))
sketch5.addConstraint(Sketcher.Constraint("Coincident", 19, 3, 7, 3))
sketch5.addConstraint(Sketcher.Constraint("Coincident", 25, 3, 21, 3))
sketch5.addConstraint(Sketcher.Constraint("Coincident", 27, 3, 0, 3))
sketch5.addConstraint(Sketcher.Constraint("Coincident", 29, 3, 0, 3))
sketch5.addConstraint(Sketcher.Constraint("Equal", 7, 9))
sketch5.addConstraint(Sketcher.Constraint("Equal", 9, 11))
sketch5.addConstraint(Sketcher.Constraint("Equal", 19, 21))
sketch5.addConstraint(Sketcher.Constraint("Symmetric", 11, 3, 21, 3, -2))
sketch5.addConstraint(Sketcher.Constraint("PointOnObject", 0, 3, -2))
sketch5.addConstraint(Sketcher.Constraint("Parallel", 2, 26))
sketch5.addConstraint(Sketcher.Constraint("Parallel", 4, 28))
sketch5.addConstraint(Sketcher.Constraint("Horizontal", 31, 2, 43, 2))
sketch5.addConstraint(Sketcher.Constraint("Horizontal", 42, 2, 49, 2))
sketch5.addConstraint(Sketcher.Constraint("Horizontal", 44, 2, 53, 2))
sketch5.addConstraint(Sketcher.Constraint("Horizontal", 38, 2, 55, 2))
sketch5.addConstraint(Sketcher.Constraint("Vertical", 37, 3, 40, 3))
sketch5.addConstraint(Sketcher.Constraint("Vertical", 45, 2, 48, 2))
sketch5.addConstraint(Sketcher.Constraint("Vertical", 58, 2, 59, 1))
sketch5.addConstraint(Sketcher.Constraint("Vertical", 62, 2, 63, 2))
sketch5.addConstraint(Sketcher.Constraint("Equal", 14, 22))
sketch5.addConstraint(Sketcher.Constraint("Equal", 31, 54))
sketch5.addConstraint(Sketcher.Constraint("Equal", 56, 47))
sketch5.addConstraint(Sketcher.Constraint("Equal", 47, 51))
sketch5.addConstraint(Sketcher.Constraint("Radius", 7, Q("9 mm")))
sketch5.addConstraint(Sketcher.Constraint("Radius", 15, Q("4 mm")))
sketch5.addConstraint(Sketcher.Constraint("Radius", 27, Q("27.031501 mm")))
sketch5.addConstraint(Sketcher.Constraint("Diameter", 0, Q("18.79757 mm")))
sketch5.addConstraint(Sketcher.Constraint("DistanceX", -1, 1, 50, 2, Q("1.25 mm")))
sketch5.addConstraint(Sketcher.Constraint("Radius", 37, Q("6.787609 mm")))
sketch5.addConstraint(Sketcher.Constraint("Radius", 40, Q("2.10905 mm")))
sketch5.addConstraint(Sketcher.Constraint("Radius", 63, Q("6.782141 mm")))
sketch5.addConstraint(Sketcher.Constraint("Diameter", 1, Q("9.381172 mm")))
sketch5.addConstraint(Sketcher.Constraint("DistanceX", 8, 1, 8, 2, Q("62.4572 mm")))
sketch5.addConstraint(Sketcher.Constraint("DistanceX", 31, 1, 31, 2, Q("4.6868 mm")))
sketch5.addConstraint(Sketcher.Constraint("DistanceX", 33, 1, 33, 2, Q("1.8122 mm")))
sketch5.addConstraint(Sketcher.Constraint("DistanceX", 44, 1, 44, 2, Q("4.6867 mm")))
sketch5.addConstraint(Sketcher.Constraint("DistanceX", 46, 1, 46, 2, Q("4.0618 mm")))
sketch5.addConstraint(Sketcher.Constraint("DistanceX", 50, 1, 50, 2, Q("6.0928 mm")))
sketch5.addConstraint(Sketcher.Constraint("DistanceY", 6, 1, 6, 2, Q("31.5247 mm")))
sketch5.addConstraint(Sketcher.Constraint("DistanceY", 32, 2, 32, 1, Q("8.2799 mm")))
sketch5.addConstraint(Sketcher.Constraint("DistanceY", 43, 1, 43, 2, Q("21.8715 mm")))
sketch5.addConstraint(Sketcher.Constraint("DistanceY", 45, 2, 45, 1, Q("8.7486 mm")))
sketch5.addConstraint(Sketcher.Constraint("DistanceY", 53, 1, 53, 2, Q("21.8714 mm")))
sketch5.addConstraint(Sketcher.Constraint("DistanceY", 57, 1, 57, 2, Q("21.9338 mm")))
sketch5.addConstraint(Sketcher.Constraint("DistanceY", 61, 2, 61, 1, Q("12.5449 mm")))
sketch5.addConstraint(Sketcher.Constraint("DistanceX", 31, 2, -1, 1, Q("23.121 mm")))
sketch5.addConstraint(Sketcher.Constraint("DistanceX", 34, 2, -1, 1, Q("18.653 mm")))
sketch5.addConstraint(Sketcher.Constraint("DistanceX", -1, 1, 57, 2, Q("13.904 mm")))
sketch5.addConstraint(Sketcher.Constraint("Radius", 3, Q("15.821653 mm")))
sketch5.addConstraint(Sketcher.Constraint("Radius", 5, Q("20.602087 mm")))
sketch5.addConstraint(Sketcher.Constraint("Radius", 29, Q("31.643306 mm")))
sketch5.addConstraint(Sketcher.Constraint("Radius", 59, Q("12.441928 mm")))
sketch5.addConstraint(Sketcher.Constraint("Distance", 38, Q("8.140799 mm")))
sketch5.addConstraint(Sketcher.Constraint("DistanceX", 39, 1, 39, 2, Q("2.433019 mm")))
sketch5.addConstraint(Sketcher.Constraint("DistanceY", 3, 2, -1, 1, Q("20.372501 mm")))
sketch5.addConstraint(Sketcher.Constraint("DistanceX", 5, 1, -1, 1, Q("17.5048 mm")))
sketch5.addConstraint(Sketcher.Constraint("DistanceX", 29, 1, -1, 1, Q("26.8861 mm")))
sketch5.addConstraint(Sketcher.Constraint("DistanceX", 36, 2, -1, 1, Q("16.7627 mm")))
sketch5.addConstraint(Sketcher.Constraint("DistanceX", 37, 1, -1, 1, Q("19.6684 mm")))
sketch5.addConstraint(Sketcher.Constraint("DistanceX", 38, 2, -1, 1, Q("27.8077 mm")))
sketch5.addConstraint(Sketcher.Constraint("DistanceX", 41, 2, -1, 1, Q("23.1211 mm")))
sketch5.addConstraint(Sketcher.Constraint("DistanceX", -1, 1, 53, 2, Q("5.1555 mm")))
sketch5.addConstraint(Sketcher.Constraint("DistanceX", -1, 1, 61, 2, Q("18.5908 mm")))
sketch5.addConstraint(Sketcher.Constraint("Distance", 36, Q("9.877619 mm")))
sketch5.addConstraint(Sketcher.Constraint("DistanceX", 12, 2, 12, 1, Q("16.240153 mm")))
sketch5.addConstraint(Sketcher.Constraint("DistanceX", 35, 1, 35, 2, Q("4.958224 mm")))
sketch5.addConstraint(Sketcher.Constraint("DistanceX", 58, 1, 58, 2, Q("8.717534 mm")))
sketch5.addConstraint(Sketcher.Constraint("DistanceX", 62, 1, 62, 2, Q("2.217827 mm")))
sketch5.addConstraint(Sketcher.Constraint("DistanceY", 0, 3, -1, 1, Q("12.032739 mm")))
sketch5.addConstraint(Sketcher.Constraint("DistanceX", 2, 2, -1, 1, Q("13.44305 mm")))
sketch5.addConstraint(Sketcher.Constraint("DistanceY", 4, 2, -1, 1, Q("22.892318 mm")))
sketch5.addConstraint(Sketcher.Constraint("DistanceX", -1, 1, 27, 2, Q("22.97128 mm")))
sketch5.addConstraint(Sketcher.Constraint("DistanceY", -1, 1, 7, 3, Q("27.927145 mm")))
sketch5.addConstraint(Sketcher.Constraint("DistanceY", -1, 1, 37, 3, Q("9.033125 mm")))
sketch5.addConstraint(Sketcher.Constraint("DistanceY", -1, 1, 59, 3, Q("13.102045 mm")))
sketch5.addConstraint(Sketcher.Constraint("DistanceY", -1, 1, 63, 3, Q("13.078595 mm")))
pad4 = body.newObject("PartDesign::Pad", "Pad003")
pad4.Profile = sketch5
pad4.Length = 1
pad4.Reversed = True

doc.recompute()
